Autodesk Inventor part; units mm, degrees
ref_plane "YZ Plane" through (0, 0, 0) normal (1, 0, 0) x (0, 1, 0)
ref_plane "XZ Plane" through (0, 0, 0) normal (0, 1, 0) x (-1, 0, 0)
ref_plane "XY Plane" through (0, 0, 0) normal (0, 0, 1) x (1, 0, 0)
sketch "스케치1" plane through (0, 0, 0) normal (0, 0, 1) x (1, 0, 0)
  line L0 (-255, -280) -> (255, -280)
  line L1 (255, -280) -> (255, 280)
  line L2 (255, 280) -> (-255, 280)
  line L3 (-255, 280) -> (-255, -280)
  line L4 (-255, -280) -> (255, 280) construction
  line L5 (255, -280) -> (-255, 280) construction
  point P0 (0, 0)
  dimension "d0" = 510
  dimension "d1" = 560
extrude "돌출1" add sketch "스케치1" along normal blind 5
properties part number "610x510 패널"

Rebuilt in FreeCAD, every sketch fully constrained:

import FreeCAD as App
import Part
import Sketcher
from FreeCAD import Vector
Q = App.Units.Quantity


def add_polygon(sketch, points):
    """Adds a closed chain of lines whose ends are joined by coincident constraints."""
    first, n = sketch.GeometryCount, len(points)
    for a, b in zip(points, points[1:] + points[:1]):
        sketch.addGeometry(Part.LineSegment(App.Vector(*a, 0), App.Vector(*b, 0)), False)
    for i in range(n):
        sketch.addConstraint(Sketcher.Constraint("Coincident", first + i, 2, first + (i + 1) % n, 1))

doc = App.newDocument("Part")
body = doc.addObject("PartDesign::Body", "Body")

sketch1 = body.newObject("Sketcher::SketchObject", "Sketch")
sketch1.AttachmentSupport = (doc.getObject("XY_Plane"), [""])
sketch1.MapMode = "FlatFace"
add_polygon(sketch1, [(-255, 280), (-255, -280), (255, -280), (255, 280)])
sketch1.addConstraint([
    Sketcher.Constraint("Vertical", 0),
    Sketcher.Constraint("Horizontal", 1),
    Sketcher.Constraint("Vertical", 2),
    Sketcher.Constraint("Horizontal", 3),
    Sketcher.Constraint("Symmetric", 0, 2, 2, 2, -1, 1),
    Sketcher.Constraint("DistanceX", 1, 1, 1, 2, Q("510 mm")),
    Sketcher.Constraint("DistanceY", 0, 2, 0, 1, Q("560 mm")),
])
pad1 = body.newObject("PartDesign::Pad", "Pad")
pad1.Profile = sketch1
pad1.Length = 5

doc.recompute()
